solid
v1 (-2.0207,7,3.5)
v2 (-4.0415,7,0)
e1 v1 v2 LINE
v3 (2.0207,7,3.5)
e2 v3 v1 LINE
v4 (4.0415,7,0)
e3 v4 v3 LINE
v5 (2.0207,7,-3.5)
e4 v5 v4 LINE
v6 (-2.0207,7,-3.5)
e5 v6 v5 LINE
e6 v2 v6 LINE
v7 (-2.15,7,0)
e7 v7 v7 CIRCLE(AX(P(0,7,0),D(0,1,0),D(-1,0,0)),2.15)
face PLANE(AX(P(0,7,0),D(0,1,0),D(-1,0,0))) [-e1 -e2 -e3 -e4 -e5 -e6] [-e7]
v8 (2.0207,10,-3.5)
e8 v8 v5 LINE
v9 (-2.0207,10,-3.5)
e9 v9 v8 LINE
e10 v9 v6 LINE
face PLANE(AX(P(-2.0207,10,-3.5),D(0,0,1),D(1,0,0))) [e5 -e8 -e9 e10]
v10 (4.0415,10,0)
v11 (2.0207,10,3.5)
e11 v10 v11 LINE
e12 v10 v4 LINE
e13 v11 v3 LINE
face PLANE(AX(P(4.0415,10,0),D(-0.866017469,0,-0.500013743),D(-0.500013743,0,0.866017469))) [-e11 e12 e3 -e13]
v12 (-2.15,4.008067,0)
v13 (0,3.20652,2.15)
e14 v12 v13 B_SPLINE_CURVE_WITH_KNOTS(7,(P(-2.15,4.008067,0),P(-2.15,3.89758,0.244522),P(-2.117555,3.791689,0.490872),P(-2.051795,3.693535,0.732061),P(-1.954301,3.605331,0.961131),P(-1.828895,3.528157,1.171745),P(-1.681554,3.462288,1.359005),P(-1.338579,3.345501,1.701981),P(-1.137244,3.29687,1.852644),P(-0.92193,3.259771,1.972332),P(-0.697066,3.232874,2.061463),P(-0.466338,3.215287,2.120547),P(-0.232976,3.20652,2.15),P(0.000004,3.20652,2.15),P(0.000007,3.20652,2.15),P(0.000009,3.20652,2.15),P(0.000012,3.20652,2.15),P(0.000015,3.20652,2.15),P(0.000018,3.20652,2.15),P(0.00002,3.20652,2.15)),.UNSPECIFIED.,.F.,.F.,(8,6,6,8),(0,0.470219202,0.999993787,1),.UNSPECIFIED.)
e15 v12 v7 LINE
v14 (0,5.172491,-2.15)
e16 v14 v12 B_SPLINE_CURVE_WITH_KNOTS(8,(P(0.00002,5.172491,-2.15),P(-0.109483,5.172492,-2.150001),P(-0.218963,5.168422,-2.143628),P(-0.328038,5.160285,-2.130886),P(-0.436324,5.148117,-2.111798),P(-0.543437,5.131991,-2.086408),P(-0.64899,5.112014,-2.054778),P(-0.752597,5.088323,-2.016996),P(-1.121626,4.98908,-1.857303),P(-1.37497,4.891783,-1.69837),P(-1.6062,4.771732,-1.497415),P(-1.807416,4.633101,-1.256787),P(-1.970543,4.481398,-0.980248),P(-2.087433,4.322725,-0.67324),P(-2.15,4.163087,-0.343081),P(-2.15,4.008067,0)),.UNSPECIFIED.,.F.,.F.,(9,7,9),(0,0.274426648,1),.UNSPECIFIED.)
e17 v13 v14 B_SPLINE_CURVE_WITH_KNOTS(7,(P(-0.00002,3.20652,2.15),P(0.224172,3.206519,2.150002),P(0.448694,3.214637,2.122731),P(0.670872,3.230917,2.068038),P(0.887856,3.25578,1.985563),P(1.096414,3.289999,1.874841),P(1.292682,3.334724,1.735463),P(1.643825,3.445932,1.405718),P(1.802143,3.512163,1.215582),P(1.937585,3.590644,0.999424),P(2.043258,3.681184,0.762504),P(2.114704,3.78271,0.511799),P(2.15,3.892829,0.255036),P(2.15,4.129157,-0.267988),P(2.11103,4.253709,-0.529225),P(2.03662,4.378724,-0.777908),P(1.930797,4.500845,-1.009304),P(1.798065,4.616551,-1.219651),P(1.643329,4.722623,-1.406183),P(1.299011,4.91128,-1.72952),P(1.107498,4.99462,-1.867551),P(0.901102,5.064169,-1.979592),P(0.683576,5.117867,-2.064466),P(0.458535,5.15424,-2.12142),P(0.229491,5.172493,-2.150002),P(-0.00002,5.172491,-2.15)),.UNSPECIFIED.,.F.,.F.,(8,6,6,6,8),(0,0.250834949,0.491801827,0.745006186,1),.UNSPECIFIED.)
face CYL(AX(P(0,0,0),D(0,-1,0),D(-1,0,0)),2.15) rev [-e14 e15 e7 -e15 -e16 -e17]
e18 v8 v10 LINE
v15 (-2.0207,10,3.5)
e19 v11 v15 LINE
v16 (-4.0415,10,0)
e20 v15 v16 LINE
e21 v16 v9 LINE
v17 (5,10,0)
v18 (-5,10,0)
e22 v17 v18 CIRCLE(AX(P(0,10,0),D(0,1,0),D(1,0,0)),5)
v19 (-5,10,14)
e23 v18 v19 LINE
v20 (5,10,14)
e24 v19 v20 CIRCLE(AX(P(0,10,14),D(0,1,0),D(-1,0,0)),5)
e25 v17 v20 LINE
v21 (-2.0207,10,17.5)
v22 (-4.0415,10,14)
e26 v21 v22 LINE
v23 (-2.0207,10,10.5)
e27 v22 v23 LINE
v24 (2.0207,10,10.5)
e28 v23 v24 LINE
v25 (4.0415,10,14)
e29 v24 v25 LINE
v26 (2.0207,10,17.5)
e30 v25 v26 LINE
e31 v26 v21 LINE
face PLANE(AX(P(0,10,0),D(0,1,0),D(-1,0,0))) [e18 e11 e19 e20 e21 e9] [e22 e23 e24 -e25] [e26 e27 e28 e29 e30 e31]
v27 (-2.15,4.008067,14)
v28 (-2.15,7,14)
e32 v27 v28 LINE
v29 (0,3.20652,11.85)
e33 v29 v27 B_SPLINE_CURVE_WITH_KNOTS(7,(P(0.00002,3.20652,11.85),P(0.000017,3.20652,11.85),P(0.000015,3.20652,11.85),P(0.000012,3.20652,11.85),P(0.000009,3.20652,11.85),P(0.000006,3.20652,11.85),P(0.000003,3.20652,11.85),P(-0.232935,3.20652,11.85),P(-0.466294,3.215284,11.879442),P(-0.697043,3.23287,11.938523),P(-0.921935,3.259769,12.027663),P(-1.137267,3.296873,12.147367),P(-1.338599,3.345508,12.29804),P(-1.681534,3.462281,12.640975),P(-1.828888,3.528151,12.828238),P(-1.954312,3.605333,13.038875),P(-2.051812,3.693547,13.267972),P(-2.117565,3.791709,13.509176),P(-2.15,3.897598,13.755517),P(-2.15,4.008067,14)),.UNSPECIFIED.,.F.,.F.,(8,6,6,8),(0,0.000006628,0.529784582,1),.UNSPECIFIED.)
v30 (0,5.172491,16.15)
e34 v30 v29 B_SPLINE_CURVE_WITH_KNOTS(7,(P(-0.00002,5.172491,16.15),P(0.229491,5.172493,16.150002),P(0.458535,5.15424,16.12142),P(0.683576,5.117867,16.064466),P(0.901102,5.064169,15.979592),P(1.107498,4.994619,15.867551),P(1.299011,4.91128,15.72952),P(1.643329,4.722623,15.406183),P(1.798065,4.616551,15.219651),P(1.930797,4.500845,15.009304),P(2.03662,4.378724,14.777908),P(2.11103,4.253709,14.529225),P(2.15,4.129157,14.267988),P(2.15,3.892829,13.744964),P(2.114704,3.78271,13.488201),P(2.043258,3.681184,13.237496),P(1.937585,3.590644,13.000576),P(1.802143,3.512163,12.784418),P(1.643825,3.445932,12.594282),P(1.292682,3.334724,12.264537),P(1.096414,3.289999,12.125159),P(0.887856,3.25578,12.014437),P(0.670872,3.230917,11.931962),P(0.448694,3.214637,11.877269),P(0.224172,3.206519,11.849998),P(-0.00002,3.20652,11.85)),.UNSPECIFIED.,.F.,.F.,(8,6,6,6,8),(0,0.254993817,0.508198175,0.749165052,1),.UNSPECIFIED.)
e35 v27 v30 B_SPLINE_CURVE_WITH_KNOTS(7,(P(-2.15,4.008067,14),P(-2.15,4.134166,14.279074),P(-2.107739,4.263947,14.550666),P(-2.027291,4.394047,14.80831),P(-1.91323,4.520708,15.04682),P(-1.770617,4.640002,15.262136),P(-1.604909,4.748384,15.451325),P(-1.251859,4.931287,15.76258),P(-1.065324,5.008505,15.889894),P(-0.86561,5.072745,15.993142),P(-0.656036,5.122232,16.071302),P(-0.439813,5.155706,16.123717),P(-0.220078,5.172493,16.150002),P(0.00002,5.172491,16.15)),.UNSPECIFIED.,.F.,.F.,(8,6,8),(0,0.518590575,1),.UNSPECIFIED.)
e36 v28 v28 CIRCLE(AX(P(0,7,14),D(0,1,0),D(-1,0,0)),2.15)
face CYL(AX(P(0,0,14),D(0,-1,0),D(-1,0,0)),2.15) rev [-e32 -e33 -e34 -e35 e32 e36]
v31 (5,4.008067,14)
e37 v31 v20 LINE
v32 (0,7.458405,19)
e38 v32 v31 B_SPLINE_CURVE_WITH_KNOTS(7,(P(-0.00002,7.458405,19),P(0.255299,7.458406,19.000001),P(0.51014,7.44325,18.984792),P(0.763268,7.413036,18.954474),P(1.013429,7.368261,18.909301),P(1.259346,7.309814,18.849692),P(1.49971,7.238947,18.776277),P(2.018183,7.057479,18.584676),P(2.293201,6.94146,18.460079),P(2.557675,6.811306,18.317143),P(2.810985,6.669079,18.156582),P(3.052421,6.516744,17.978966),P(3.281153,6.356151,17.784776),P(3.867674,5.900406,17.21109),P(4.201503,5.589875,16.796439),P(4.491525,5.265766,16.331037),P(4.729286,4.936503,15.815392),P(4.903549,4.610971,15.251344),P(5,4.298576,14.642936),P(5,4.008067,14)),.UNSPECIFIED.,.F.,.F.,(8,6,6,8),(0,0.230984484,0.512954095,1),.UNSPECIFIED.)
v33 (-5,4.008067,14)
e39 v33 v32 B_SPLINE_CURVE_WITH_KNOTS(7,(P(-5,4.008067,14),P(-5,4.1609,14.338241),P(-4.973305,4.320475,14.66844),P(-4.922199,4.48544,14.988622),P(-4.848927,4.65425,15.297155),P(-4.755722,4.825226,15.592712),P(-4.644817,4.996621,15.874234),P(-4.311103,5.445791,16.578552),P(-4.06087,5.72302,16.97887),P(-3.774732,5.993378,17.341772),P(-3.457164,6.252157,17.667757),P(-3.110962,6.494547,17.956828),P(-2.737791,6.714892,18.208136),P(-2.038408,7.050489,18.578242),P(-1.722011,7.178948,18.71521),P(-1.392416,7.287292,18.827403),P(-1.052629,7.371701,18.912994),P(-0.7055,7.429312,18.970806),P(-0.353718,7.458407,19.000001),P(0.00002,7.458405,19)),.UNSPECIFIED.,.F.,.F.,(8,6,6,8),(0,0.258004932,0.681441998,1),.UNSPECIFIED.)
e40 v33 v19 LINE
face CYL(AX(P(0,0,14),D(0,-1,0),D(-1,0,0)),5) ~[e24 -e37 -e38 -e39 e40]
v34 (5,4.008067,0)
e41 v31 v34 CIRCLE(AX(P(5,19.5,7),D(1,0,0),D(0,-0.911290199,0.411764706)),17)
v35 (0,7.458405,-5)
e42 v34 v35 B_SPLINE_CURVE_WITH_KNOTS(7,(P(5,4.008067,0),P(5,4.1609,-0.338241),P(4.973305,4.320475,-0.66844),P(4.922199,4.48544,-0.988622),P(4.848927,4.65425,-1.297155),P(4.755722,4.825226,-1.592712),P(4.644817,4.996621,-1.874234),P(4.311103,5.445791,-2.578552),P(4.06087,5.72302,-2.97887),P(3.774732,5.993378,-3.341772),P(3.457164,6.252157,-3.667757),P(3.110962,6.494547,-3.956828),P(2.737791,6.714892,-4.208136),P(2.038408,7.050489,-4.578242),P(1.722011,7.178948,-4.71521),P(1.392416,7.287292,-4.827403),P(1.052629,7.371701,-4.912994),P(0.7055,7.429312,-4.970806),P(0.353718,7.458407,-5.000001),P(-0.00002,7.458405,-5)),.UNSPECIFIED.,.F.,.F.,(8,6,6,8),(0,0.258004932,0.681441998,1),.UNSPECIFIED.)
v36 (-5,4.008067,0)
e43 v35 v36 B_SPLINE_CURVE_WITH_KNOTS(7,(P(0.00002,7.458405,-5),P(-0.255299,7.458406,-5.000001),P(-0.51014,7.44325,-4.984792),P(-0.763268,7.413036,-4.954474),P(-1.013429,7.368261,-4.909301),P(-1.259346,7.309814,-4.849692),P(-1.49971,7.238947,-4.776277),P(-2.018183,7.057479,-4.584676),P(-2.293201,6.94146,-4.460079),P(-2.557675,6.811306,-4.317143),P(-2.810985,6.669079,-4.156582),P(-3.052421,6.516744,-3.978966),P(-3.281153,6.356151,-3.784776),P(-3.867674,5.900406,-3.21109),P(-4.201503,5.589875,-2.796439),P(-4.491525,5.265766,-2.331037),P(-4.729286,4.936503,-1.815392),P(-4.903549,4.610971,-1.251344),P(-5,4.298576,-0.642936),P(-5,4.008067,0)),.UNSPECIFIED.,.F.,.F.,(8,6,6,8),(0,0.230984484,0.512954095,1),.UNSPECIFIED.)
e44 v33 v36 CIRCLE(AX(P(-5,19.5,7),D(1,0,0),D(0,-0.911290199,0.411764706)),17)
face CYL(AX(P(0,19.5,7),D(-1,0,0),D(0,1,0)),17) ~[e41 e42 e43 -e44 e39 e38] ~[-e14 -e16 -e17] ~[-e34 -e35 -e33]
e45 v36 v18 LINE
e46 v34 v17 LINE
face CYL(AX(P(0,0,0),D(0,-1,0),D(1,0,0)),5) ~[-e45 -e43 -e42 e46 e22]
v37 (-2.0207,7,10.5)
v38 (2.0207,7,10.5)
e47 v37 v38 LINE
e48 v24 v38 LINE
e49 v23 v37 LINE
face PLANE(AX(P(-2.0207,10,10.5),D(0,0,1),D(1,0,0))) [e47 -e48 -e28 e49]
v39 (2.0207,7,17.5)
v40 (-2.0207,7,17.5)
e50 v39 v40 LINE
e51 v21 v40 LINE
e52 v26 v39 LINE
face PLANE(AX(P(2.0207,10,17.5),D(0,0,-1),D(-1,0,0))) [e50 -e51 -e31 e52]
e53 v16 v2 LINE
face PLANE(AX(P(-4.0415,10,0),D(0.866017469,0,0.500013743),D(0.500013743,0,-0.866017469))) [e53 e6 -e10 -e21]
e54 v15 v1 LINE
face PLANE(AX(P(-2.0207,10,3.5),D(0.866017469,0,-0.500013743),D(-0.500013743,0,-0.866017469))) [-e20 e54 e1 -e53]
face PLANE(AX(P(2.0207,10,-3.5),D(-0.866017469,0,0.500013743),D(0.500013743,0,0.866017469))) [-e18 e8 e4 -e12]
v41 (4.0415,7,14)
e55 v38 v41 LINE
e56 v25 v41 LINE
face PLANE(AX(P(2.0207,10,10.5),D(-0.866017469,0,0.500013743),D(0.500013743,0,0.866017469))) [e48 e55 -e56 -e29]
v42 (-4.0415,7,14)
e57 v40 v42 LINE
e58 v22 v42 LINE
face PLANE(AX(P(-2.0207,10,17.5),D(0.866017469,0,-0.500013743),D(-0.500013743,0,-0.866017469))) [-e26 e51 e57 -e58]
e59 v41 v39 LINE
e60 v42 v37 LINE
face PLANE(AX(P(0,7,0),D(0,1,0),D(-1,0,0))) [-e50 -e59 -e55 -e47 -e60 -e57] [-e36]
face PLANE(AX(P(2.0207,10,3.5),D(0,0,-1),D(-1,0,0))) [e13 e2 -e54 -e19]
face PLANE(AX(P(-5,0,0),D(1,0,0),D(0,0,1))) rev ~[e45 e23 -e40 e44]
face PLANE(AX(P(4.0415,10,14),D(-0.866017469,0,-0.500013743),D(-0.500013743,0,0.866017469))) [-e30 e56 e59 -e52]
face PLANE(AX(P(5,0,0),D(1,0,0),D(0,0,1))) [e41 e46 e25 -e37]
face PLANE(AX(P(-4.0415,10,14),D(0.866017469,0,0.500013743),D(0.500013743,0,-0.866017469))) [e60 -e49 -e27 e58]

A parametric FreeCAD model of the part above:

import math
import FreeCAD as App
import Part
import Sketcher

V = App.Vector
Q = App.Units.Quantity


def add_polygon(sketch, points):
    """Adds a closed chain of lines whose ends are joined by coincident constraints."""
    first, n = sketch.GeometryCount, len(points)
    for a, b in zip(points, points[1:] + points[:1]):
        sketch.addGeometry(Part.LineSegment(App.Vector(*a, 0), App.Vector(*b, 0)), False)
    for i in range(n):
        sketch.addConstraint(Sketcher.Constraint("Coincident", first + i, 2, first + (i + 1) % n, 1))

doc = App.newDocument("Part")
params = doc.addObject("Spreadsheet::Sheet", "Params")
for row, (alias, value) in enumerate([
    ("sketch1_radius", "5 mm"),
    ("sketch1_diameter", "4.3 mm"),
    ("sketch1_height", "14 mm"),
    ("pad1_length", "10 mm"),
    ("sketch2_diameter", "4.3 mm"),
    ("pocket1_length", "3 mm"),
    ("sketch3_diameter", "34 mm"),
], start=1):
    params.set(f"A{row}", alias)
    params.set(f"B{row}", "=" + value)
    params.setAlias(f"B{row}", alias)

body = doc.addObject("PartDesign::Body", "Body")

# Sketch on XZ plane
sketch1 = doc.addObject("Sketcher::SketchObject", "Sketch")
body.addObject(sketch1)
sketch1.AttachmentSupport = (doc.XZ_Plane, [""])
sketch1.MapMode = "FlatFace"
sketch1.addGeometry(Part.LineSegment(V(5, 14, 0), V(5, 0, 0)), False)
sketch1.addGeometry(Part.ArcOfCircle(Part.Circle(V(0, 0, 0), V(0, 0, 1), 5), math.radians(180), math.radians(360)), False)
sketch1.addGeometry(Part.LineSegment(V(-5, 0, 0), V(-5, 14, 0)), False)
sketch1.addGeometry(Part.ArcOfCircle(Part.Circle(V(0, 14, 0), V(0, 0, 1), 5), math.radians(0), math.radians(180)), False)
sketch1.addGeometry(Part.Circle(V(0, 0, 0), V(0, 0, 1), 2.1), False)
sketch1.addGeometry(Part.Circle(V(0, 14, 0), V(0, 0, 1), 2.1), False)
sketch1.addConstraint(Sketcher.Constraint("Tangent", 0, 2, 1, 2))
sketch1.addConstraint(Sketcher.Constraint("Tangent", 1, 1, 2, 1))
sketch1.addConstraint(Sketcher.Constraint("Tangent", 2, 2, 3, 2))
sketch1.addConstraint(Sketcher.Constraint("Tangent", 3, 1, 0, 1))
sketch1.addConstraint(Sketcher.Constraint("Vertical", 0))
sketch1.addConstraint(Sketcher.Constraint("Vertical", 2))
sketch1.addConstraint(Sketcher.Constraint("Coincident", 1, 3, -1, 1))
sketch1.addConstraint(Sketcher.Constraint("Coincident", 4, 3, -1, 1))
sketch1.addConstraint(Sketcher.Constraint("Coincident", 5, 3, 3, 3))
sketch1.addConstraint(Sketcher.Constraint("Equal", 4, 5))
sketch1.addConstraint(Sketcher.Constraint("Radius", 1, Q("5 mm")))
sketch1.addConstraint(Sketcher.Constraint("Diameter", 4, Q("4.3 mm")))
sketch1.addConstraint(Sketcher.Constraint("DistanceY", 0, 2, 0, 1, Q("14 mm")))
sketch1.setExpression("Constraints[10]", "Params.sketch1_radius")
sketch1.setExpression("Constraints[11]", "Params.sketch1_diameter")
sketch1.setExpression("Constraints[12]", "Params.sketch1_height")
pad1 = doc.addObject("PartDesign::Pad", "Pad")
body.addObject(pad1)
pad1.Profile = sketch1
pad1.setExpression("Length", "Params.pad1_length")
pad1.Reversed = True

# Sketch on XZ plane
sketch2 = doc.addObject("Sketcher::SketchObject", "Sketch001")
body.addObject(sketch2)
sketch2.AttachmentSupport = (doc.XZ_Plane, [""])
sketch2.MapMode = "FlatFace"
sketch2.AttachmentOffset = App.Placement(V(0, 0, -10), App.Rotation())
add_polygon(sketch2, [(-4, 0), (-2, 3.5), (2, 3.5), (4, 0), (2, -3.5), (-2, -3.5)])  # lines 0-5
add_polygon(sketch2, [(2, 17.5), (4, 14), (2, 10.5), (-2, 10.5), (-4, 14), (-2, 17.5)])  # lines 6-11
sketch2.addGeometry(Part.Circle(V(0, 14, 0), V(0, 0, 1), 2.1), False)  # 12
sketch2.addConstraint(Sketcher.Constraint("Horizontal", 1))
sketch2.addConstraint(Sketcher.Constraint("Horizontal", 4))
sketch2.addConstraint(Sketcher.Constraint("Horizontal", 8))
sketch2.addConstraint(Sketcher.Constraint("Horizontal", 11))
sketch2.addConstraint(Sketcher.Constraint("Symmetric", 0, 2, 3, 2, -1, 1))
sketch2.addConstraint(Sketcher.Constraint("Symmetric", 2, 2, 5, 2, -1, 1))
sketch2.addConstraint(Sketcher.Constraint("Symmetric", 6, 2, 9, 2, -2))
sketch2.addConstraint(Sketcher.Constraint("PointOnObject", 12, 3, -2))
sketch2.addConstraint(Sketcher.Constraint("PointOnObject", 2, 2, -1))
sketch2.addConstraint(Sketcher.Constraint("Parallel", 2, 5))
sketch2.addConstraint(Sketcher.Constraint("Parallel", 5, 6))
sketch2.addConstraint(Sketcher.Constraint("Parallel", 3, 7))
sketch2.addConstraint(Sketcher.Constraint("Parallel", 6, 9))
sketch2.addConstraint(Sketcher.Constraint("Parallel", 7, 10))
sketch2.addConstraint(Sketcher.Constraint("Horizontal", 12, 3, 6, 2))
sketch2.addConstraint(Sketcher.Constraint("Vertical", 1, 2, 3, 2))
sketch2.addConstraint(Sketcher.Constraint("Vertical", 2, 2, 6, 2))
sketch2.addConstraint(Sketcher.Constraint("Vertical", 3, 2, 7, 2))
sketch2.addConstraint(Sketcher.Constraint("Vertical", 8, 2, 10, 2))
sketch2.addConstraint(Sketcher.Constraint("DistanceY", 3, 2, 1, 2, Q("7 mm")))
sketch2.addConstraint(Sketcher.Constraint("DistanceY", 1, 2, 7, 2, Q("7 mm")))
sketch2.addConstraint(Sketcher.Constraint("Diameter", 12, Q("4.3 mm")))
sketch2.addConstraint(Sketcher.Constraint("Angle", 0, Q("59.999 deg")))
sketch2.addConstraint(Sketcher.Constraint("DistanceX", 1, 1, 1, 2, Q("4.0414 mm")))
sketch2.setExpression("Constraints[33]", "Params.sketch2_diameter")
pocket1 = doc.addObject("PartDesign::Pocket", "Pocket")
body.addObject(pocket1)
pocket1.Profile = sketch2
pocket1.setExpression("Length", "Params.pocket1_length")
pocket1.Reversed = True

# Sketch on YZ plane
sketch3 = doc.addObject("Sketcher::SketchObject", "Sketch002")
body.addObject(sketch3)
sketch3.AttachmentSupport = (doc.YZ_Plane, [""])
sketch3.MapMode = "FlatFace"
sketch3.addGeometry(Part.Circle(V(20, 7, 0), V(0, 0, 1), 31), False)
sketch3.addGeometry(Part.Circle(V(20, 7, 0), V(0, 0, 1), 17), False)
sketch3.addConstraint(Sketcher.Constraint("Coincident", 1, 3, 0, 3))
sketch3.addConstraint(Sketcher.Constraint("Diameter", 1, Q("34 mm")))
sketch3.addConstraint(Sketcher.Constraint("DistanceY", -1, 1, 0, 3, Q("7 mm")))
sketch3.addConstraint(Sketcher.Constraint("DistanceX", -1, 1, 0, 3, Q("19.5 mm")))
sketch3.addConstraint(Sketcher.Constraint("Diameter", 0, Q("61.268 mm")))
sketch3.setExpression("Constraints[1]", "Params.sketch3_diameter")
pocket2 = doc.addObject("PartDesign::Pocket", "Pocket001")
body.addObject(pocket2)
pocket2.Profile = sketch3
pocket2.Type = "ThroughAll"
pocket2.Midplane = True

doc.recompute()
